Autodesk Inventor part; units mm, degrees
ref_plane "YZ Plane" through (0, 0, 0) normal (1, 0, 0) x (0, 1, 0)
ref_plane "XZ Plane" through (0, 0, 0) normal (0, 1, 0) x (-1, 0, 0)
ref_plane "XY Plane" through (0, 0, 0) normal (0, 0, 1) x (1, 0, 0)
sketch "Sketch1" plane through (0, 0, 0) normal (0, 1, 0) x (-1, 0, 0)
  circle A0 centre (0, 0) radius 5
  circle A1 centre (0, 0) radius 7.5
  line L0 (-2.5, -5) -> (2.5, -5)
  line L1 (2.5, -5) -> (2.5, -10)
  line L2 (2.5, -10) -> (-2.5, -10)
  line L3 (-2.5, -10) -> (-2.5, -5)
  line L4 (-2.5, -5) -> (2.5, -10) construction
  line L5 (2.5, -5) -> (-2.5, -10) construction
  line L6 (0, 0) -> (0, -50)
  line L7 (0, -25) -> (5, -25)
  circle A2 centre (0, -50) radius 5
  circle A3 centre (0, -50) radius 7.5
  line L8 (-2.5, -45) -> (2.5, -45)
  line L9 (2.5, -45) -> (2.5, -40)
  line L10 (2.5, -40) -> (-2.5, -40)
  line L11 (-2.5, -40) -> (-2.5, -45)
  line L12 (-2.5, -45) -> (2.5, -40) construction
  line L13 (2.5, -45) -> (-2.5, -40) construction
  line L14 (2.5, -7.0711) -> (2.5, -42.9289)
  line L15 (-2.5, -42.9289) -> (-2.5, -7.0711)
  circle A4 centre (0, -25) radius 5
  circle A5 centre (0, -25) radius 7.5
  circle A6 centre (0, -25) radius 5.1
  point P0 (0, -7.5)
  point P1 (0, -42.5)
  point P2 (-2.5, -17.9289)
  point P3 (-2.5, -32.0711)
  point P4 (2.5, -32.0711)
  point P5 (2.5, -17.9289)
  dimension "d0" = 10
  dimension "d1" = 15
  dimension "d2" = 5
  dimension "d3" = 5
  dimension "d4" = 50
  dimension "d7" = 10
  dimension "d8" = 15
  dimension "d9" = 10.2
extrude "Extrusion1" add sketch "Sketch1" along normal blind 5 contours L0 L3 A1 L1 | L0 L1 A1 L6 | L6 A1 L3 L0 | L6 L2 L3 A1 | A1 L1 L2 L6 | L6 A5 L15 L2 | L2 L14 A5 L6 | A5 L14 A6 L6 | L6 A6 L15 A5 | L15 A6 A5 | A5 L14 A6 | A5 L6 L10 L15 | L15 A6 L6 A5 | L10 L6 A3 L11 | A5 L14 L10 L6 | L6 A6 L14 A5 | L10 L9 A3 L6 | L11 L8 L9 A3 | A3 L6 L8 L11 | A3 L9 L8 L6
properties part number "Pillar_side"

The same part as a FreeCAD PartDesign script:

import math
import FreeCAD as App
import Part
import Sketcher
from FreeCAD import Vector

doc = App.newDocument("Part")
body = doc.addObject("PartDesign::Body", "Body")

# Sketch on XZ plane
sketch1 = body.newObject("Sketcher::SketchObject", "Sketch")
sketch1.AttachmentSupport = (doc.getObject("XZ_Plane"), [""])
sketch1.MapMode = "FlatFace"
sketch1.addGeometry(Part.LineSegment(Vector(2.5, -7.0711, 0), Vector(2.5, -17.928932, 0)), False)
sketch1.addGeometry(Part.ArcOfCircle(Part.Circle(Vector(0, -25, 0), Vector(0, 0, 1), 7.5), math.radians(-70.528779), math.radians(70.528779)), False)
sketch1.addGeometry(Part.LineSegment(Vector(2.5, -32.071068, 0), Vector(2.5, -42.9289, 0)), False)
sketch1.addGeometry(Part.ArcOfCircle(Part.Circle(Vector(0, -50, 0), Vector(0, 0, 1), 7.5), math.radians(109.471139), math.radians(430.528861)), False)
sketch1.addGeometry(Part.LineSegment(Vector(-2.5, -42.9289, 0), Vector(-2.5, -32.071068, 0)), False)
sketch1.addGeometry(Part.ArcOfCircle(Part.Circle(Vector(0, -25, 0), Vector(0, 0, 1), 7.5), math.radians(109.471221), math.radians(250.528779)), False)
sketch1.addGeometry(Part.LineSegment(Vector(-2.5, -17.928932, 0), Vector(-2.5, -7.0711, 0)), False)
sketch1.addGeometry(Part.ArcOfCircle(Part.Circle(Vector(0, 0, 0), Vector(0, 0, 1), 7.5), math.radians(-70.528861), math.radians(250.528861)), False)
sketch1.addGeometry(Part.Circle(Vector(0, 0, 0), Vector(0, 0, 1), 5), False)
sketch1.addGeometry(Part.Circle(Vector(0, -25, 0), Vector(0, 0, 1), 5.1), False)
sketch1.addGeometry(Part.Circle(Vector(0, -50, 0), Vector(0, 0, 1), 5), False)
sketch1.addConstraint(Sketcher.Constraint("Coincident", 0, 2, 1, 2))
sketch1.addConstraint(Sketcher.Constraint("Coincident", 1, 1, 2, 1))
sketch1.addConstraint(Sketcher.Constraint("Coincident", 2, 2, 3, 2))
sketch1.addConstraint(Sketcher.Constraint("Coincident", 3, 1, 4, 1))
sketch1.addConstraint(Sketcher.Constraint("Coincident", 4, 2, 5, 2))
sketch1.addConstraint(Sketcher.Constraint("Coincident", 5, 1, 6, 1))
sketch1.addConstraint(Sketcher.Constraint("Coincident", 6, 2, 7, 2))
sketch1.addConstraint(Sketcher.Constraint("Coincident", 7, 1, 0, 1))
sketch1.addConstraint(Sketcher.Constraint("Vertical", 0))
sketch1.addConstraint(Sketcher.Constraint("Vertical", 2))
sketch1.addConstraint(Sketcher.Constraint("Vertical", 4))
sketch1.addConstraint(Sketcher.Constraint("Vertical", 6))
sketch1.addConstraint(Sketcher.Constraint("Coincident", 7, 3, -1, 1))
sketch1.addConstraint(Sketcher.Constraint("Coincident", 8, 3, -1, 1))
sketch1.addConstraint(Sketcher.Constraint("Coincident", 5, 3, 1, 3))
sketch1.addConstraint(Sketcher.Constraint("Coincident", 9, 3, 1, 3))
sketch1.addConstraint(Sketcher.Constraint("Coincident", 10, 3, 3, 3))
sketch1.addConstraint(Sketcher.Constraint("Equal", 1, 3))
sketch1.addConstraint(Sketcher.Constraint("Equal", 3, 5))
sketch1.addConstraint(Sketcher.Constraint("Equal", 5, 7))
sketch1.addConstraint(Sketcher.Constraint("Equal", 8, 10))
sketch1.addConstraint(Sketcher.Constraint("Symmetric", 2, 2, 3, 1, -2))
sketch1.addConstraint(Sketcher.Constraint("Symmetric", 0, 2, 5, 1, -2))
sketch1.addConstraint(Sketcher.Constraint("Vertical", 0, 2, 1, 1))
sketch1.addConstraint(Sketcher.Constraint("Equal", 0, 2))
sketch1.addConstraint(Sketcher.Constraint("Diameter", 8, 10.0))
sketch1.addConstraint(Sketcher.Constraint("Diameter", 9, 10.2))
sketch1.addConstraint(Sketcher.Constraint("Radius", 1, 7.5))
sketch1.addConstraint(Sketcher.Constraint("DistanceY", 3, 3, -1, 1, 50.0))
sketch1.addConstraint(Sketcher.Constraint("DistanceX", 3, 1, 2, 2, 5.0))
pad1 = body.newObject("PartDesign::Pad", "Pad")
pad1.Profile = sketch1
pad1.Length = 5
pad1.Reversed = True

doc.recompute()
